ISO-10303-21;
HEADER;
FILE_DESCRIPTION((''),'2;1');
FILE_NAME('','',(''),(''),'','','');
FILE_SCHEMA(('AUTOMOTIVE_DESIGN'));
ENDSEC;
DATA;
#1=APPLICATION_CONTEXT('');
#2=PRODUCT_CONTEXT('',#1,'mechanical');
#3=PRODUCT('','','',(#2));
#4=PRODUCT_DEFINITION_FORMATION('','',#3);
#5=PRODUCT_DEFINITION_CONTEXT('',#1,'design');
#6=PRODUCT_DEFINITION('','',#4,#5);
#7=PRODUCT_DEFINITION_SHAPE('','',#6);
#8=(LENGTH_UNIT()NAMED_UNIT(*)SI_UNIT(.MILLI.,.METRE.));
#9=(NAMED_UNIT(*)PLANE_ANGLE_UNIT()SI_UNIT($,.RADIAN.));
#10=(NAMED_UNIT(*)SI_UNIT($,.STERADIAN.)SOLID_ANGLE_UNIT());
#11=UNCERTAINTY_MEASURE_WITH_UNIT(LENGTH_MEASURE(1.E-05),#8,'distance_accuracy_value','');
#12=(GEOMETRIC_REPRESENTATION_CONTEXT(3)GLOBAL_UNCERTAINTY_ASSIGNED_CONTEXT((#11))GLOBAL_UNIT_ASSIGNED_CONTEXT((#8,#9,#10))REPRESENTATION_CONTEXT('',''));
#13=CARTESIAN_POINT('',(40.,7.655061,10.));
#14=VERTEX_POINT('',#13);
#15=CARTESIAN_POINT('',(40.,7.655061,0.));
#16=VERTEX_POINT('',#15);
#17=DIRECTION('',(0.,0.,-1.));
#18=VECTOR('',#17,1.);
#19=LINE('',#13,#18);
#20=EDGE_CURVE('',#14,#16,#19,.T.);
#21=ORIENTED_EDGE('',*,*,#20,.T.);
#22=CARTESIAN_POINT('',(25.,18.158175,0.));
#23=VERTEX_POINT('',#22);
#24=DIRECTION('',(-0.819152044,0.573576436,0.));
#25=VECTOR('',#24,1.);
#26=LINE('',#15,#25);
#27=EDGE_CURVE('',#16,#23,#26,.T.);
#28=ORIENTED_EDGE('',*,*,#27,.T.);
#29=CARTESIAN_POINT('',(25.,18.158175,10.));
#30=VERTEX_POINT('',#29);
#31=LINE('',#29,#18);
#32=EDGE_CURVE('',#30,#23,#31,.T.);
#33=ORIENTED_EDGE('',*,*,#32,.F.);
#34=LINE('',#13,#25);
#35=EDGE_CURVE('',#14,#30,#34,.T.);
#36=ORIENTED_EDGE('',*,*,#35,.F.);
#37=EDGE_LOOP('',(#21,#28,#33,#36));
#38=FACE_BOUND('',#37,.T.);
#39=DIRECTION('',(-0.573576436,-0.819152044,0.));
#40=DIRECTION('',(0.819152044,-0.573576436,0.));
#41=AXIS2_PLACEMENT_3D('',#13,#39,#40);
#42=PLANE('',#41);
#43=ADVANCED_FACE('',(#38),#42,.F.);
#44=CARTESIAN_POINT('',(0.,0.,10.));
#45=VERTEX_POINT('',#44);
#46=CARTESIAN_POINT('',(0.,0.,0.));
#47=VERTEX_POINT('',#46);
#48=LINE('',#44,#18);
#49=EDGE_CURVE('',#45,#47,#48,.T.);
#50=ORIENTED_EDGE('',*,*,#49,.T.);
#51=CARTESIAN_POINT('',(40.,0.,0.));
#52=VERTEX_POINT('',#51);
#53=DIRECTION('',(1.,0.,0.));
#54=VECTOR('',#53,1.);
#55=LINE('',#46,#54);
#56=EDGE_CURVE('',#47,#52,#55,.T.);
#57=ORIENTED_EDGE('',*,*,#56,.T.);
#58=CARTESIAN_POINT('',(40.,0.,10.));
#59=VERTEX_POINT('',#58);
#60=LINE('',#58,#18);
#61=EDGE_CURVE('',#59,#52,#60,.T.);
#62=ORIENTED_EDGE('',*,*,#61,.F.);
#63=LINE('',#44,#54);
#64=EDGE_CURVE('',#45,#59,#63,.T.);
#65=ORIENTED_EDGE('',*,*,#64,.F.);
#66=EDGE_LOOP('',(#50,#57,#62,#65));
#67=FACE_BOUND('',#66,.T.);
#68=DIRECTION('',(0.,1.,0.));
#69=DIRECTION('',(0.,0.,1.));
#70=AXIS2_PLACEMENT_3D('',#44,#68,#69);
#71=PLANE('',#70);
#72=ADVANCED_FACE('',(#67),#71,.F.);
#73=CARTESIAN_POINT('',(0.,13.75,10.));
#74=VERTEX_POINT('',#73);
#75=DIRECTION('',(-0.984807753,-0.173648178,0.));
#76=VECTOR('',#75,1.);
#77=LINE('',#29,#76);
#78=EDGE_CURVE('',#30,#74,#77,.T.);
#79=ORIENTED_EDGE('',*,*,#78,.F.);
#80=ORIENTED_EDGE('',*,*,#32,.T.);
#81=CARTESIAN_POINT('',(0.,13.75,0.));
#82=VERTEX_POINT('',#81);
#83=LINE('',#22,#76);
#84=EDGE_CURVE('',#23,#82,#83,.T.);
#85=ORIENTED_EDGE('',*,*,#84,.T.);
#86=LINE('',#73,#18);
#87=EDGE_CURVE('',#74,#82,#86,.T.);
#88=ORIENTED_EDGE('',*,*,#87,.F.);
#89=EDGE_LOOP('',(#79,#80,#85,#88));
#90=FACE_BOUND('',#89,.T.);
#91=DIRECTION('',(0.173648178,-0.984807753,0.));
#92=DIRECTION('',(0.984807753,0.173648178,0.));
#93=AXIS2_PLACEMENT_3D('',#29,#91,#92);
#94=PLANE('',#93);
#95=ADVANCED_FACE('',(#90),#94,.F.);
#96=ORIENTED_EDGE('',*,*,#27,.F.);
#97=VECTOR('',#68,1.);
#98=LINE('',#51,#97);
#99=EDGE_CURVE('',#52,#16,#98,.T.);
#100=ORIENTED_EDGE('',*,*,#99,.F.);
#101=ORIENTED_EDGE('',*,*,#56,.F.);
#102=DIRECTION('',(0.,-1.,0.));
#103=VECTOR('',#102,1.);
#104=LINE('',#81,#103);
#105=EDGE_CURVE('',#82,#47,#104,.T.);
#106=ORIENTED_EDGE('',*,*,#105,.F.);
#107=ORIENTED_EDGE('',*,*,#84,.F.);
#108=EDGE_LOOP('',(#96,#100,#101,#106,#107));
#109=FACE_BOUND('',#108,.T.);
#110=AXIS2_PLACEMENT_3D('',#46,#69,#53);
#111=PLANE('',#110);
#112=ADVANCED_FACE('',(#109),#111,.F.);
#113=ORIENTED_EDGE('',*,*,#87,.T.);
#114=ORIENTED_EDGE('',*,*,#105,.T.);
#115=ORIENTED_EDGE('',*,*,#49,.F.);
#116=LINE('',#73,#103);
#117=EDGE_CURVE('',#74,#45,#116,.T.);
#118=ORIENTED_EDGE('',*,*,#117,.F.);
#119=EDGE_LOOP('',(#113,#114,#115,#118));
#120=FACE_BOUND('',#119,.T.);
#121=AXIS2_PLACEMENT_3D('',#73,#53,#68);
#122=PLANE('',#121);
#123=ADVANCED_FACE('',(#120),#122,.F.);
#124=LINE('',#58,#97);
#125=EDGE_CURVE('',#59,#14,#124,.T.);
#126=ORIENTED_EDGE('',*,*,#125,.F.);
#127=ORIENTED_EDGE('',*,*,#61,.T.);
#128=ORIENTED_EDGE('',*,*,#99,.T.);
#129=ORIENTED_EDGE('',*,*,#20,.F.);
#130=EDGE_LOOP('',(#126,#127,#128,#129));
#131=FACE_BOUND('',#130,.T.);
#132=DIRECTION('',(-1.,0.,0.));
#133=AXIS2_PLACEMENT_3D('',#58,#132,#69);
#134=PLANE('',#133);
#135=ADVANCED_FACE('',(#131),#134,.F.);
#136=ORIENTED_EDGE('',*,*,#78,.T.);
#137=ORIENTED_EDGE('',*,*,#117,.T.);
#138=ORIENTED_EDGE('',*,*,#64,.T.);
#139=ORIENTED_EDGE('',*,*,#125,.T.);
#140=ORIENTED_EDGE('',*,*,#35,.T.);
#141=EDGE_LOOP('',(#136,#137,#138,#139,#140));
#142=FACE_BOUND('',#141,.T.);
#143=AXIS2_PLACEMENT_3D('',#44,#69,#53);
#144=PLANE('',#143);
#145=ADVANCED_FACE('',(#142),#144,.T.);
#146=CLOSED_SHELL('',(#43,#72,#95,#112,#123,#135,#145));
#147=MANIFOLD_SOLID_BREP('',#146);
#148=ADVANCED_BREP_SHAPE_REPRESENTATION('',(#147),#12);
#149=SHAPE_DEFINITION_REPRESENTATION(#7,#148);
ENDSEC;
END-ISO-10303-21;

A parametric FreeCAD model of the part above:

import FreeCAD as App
import Part
import Sketcher

V = App.Vector
Q = App.Units.Quantity


def add_polygon(sketch, points):
    """Adds a closed chain of lines whose ends are joined by coincident constraints."""
    first, n = sketch.GeometryCount, len(points)
    for a, b in zip(points, points[1:] + points[:1]):
        sketch.addGeometry(Part.LineSegment(App.Vector(*a, 0), App.Vector(*b, 0)), False)
    for i in range(n):
        sketch.addConstraint(Sketcher.Constraint("Coincident", first + i, 2, first + (i + 1) % n, 1))

doc = App.newDocument("Part")
body = doc.addObject("PartDesign::Body", "Body")

# Sketch on XY plane
sketch1 = doc.addObject("Sketcher::SketchObject", "Sketch")
body.addObject(sketch1)
sketch1.AttachmentSupport = (doc.XY_Plane, [""])
sketch1.MapMode = "FlatFace"
add_polygon(sketch1, [(0, 0), (40, 0), (40, 8), (25, 18), (0, 14)])  # lines 0-4
sketch1.addConstraint([
    Sketcher.Constraint("Horizontal", 0),
    Sketcher.Constraint("Vertical", 1),
    Sketcher.Constraint("Vertical", 4),
    Sketcher.Constraint("Coincident", 4, 2, -1, 1),
    Sketcher.Constraint("DistanceX", 0, 1, 0, 2, 40.0),
    Sketcher.Constraint("Angle", 2, Q("145 deg")),
    Sketcher.Constraint("Angle", 3, Q("-170 deg")),
    Sketcher.Constraint("DistanceX", -1, 1, 2, 2, 25.0),
    Sketcher.Constraint("DistanceY", 4, 2, 4, 1, 13.75),
])
pad1 = doc.addObject("PartDesign::Pad", "Pad")
body.addObject(pad1)
pad1.Profile = sketch1
pad1.Length = 10

doc.recompute()
